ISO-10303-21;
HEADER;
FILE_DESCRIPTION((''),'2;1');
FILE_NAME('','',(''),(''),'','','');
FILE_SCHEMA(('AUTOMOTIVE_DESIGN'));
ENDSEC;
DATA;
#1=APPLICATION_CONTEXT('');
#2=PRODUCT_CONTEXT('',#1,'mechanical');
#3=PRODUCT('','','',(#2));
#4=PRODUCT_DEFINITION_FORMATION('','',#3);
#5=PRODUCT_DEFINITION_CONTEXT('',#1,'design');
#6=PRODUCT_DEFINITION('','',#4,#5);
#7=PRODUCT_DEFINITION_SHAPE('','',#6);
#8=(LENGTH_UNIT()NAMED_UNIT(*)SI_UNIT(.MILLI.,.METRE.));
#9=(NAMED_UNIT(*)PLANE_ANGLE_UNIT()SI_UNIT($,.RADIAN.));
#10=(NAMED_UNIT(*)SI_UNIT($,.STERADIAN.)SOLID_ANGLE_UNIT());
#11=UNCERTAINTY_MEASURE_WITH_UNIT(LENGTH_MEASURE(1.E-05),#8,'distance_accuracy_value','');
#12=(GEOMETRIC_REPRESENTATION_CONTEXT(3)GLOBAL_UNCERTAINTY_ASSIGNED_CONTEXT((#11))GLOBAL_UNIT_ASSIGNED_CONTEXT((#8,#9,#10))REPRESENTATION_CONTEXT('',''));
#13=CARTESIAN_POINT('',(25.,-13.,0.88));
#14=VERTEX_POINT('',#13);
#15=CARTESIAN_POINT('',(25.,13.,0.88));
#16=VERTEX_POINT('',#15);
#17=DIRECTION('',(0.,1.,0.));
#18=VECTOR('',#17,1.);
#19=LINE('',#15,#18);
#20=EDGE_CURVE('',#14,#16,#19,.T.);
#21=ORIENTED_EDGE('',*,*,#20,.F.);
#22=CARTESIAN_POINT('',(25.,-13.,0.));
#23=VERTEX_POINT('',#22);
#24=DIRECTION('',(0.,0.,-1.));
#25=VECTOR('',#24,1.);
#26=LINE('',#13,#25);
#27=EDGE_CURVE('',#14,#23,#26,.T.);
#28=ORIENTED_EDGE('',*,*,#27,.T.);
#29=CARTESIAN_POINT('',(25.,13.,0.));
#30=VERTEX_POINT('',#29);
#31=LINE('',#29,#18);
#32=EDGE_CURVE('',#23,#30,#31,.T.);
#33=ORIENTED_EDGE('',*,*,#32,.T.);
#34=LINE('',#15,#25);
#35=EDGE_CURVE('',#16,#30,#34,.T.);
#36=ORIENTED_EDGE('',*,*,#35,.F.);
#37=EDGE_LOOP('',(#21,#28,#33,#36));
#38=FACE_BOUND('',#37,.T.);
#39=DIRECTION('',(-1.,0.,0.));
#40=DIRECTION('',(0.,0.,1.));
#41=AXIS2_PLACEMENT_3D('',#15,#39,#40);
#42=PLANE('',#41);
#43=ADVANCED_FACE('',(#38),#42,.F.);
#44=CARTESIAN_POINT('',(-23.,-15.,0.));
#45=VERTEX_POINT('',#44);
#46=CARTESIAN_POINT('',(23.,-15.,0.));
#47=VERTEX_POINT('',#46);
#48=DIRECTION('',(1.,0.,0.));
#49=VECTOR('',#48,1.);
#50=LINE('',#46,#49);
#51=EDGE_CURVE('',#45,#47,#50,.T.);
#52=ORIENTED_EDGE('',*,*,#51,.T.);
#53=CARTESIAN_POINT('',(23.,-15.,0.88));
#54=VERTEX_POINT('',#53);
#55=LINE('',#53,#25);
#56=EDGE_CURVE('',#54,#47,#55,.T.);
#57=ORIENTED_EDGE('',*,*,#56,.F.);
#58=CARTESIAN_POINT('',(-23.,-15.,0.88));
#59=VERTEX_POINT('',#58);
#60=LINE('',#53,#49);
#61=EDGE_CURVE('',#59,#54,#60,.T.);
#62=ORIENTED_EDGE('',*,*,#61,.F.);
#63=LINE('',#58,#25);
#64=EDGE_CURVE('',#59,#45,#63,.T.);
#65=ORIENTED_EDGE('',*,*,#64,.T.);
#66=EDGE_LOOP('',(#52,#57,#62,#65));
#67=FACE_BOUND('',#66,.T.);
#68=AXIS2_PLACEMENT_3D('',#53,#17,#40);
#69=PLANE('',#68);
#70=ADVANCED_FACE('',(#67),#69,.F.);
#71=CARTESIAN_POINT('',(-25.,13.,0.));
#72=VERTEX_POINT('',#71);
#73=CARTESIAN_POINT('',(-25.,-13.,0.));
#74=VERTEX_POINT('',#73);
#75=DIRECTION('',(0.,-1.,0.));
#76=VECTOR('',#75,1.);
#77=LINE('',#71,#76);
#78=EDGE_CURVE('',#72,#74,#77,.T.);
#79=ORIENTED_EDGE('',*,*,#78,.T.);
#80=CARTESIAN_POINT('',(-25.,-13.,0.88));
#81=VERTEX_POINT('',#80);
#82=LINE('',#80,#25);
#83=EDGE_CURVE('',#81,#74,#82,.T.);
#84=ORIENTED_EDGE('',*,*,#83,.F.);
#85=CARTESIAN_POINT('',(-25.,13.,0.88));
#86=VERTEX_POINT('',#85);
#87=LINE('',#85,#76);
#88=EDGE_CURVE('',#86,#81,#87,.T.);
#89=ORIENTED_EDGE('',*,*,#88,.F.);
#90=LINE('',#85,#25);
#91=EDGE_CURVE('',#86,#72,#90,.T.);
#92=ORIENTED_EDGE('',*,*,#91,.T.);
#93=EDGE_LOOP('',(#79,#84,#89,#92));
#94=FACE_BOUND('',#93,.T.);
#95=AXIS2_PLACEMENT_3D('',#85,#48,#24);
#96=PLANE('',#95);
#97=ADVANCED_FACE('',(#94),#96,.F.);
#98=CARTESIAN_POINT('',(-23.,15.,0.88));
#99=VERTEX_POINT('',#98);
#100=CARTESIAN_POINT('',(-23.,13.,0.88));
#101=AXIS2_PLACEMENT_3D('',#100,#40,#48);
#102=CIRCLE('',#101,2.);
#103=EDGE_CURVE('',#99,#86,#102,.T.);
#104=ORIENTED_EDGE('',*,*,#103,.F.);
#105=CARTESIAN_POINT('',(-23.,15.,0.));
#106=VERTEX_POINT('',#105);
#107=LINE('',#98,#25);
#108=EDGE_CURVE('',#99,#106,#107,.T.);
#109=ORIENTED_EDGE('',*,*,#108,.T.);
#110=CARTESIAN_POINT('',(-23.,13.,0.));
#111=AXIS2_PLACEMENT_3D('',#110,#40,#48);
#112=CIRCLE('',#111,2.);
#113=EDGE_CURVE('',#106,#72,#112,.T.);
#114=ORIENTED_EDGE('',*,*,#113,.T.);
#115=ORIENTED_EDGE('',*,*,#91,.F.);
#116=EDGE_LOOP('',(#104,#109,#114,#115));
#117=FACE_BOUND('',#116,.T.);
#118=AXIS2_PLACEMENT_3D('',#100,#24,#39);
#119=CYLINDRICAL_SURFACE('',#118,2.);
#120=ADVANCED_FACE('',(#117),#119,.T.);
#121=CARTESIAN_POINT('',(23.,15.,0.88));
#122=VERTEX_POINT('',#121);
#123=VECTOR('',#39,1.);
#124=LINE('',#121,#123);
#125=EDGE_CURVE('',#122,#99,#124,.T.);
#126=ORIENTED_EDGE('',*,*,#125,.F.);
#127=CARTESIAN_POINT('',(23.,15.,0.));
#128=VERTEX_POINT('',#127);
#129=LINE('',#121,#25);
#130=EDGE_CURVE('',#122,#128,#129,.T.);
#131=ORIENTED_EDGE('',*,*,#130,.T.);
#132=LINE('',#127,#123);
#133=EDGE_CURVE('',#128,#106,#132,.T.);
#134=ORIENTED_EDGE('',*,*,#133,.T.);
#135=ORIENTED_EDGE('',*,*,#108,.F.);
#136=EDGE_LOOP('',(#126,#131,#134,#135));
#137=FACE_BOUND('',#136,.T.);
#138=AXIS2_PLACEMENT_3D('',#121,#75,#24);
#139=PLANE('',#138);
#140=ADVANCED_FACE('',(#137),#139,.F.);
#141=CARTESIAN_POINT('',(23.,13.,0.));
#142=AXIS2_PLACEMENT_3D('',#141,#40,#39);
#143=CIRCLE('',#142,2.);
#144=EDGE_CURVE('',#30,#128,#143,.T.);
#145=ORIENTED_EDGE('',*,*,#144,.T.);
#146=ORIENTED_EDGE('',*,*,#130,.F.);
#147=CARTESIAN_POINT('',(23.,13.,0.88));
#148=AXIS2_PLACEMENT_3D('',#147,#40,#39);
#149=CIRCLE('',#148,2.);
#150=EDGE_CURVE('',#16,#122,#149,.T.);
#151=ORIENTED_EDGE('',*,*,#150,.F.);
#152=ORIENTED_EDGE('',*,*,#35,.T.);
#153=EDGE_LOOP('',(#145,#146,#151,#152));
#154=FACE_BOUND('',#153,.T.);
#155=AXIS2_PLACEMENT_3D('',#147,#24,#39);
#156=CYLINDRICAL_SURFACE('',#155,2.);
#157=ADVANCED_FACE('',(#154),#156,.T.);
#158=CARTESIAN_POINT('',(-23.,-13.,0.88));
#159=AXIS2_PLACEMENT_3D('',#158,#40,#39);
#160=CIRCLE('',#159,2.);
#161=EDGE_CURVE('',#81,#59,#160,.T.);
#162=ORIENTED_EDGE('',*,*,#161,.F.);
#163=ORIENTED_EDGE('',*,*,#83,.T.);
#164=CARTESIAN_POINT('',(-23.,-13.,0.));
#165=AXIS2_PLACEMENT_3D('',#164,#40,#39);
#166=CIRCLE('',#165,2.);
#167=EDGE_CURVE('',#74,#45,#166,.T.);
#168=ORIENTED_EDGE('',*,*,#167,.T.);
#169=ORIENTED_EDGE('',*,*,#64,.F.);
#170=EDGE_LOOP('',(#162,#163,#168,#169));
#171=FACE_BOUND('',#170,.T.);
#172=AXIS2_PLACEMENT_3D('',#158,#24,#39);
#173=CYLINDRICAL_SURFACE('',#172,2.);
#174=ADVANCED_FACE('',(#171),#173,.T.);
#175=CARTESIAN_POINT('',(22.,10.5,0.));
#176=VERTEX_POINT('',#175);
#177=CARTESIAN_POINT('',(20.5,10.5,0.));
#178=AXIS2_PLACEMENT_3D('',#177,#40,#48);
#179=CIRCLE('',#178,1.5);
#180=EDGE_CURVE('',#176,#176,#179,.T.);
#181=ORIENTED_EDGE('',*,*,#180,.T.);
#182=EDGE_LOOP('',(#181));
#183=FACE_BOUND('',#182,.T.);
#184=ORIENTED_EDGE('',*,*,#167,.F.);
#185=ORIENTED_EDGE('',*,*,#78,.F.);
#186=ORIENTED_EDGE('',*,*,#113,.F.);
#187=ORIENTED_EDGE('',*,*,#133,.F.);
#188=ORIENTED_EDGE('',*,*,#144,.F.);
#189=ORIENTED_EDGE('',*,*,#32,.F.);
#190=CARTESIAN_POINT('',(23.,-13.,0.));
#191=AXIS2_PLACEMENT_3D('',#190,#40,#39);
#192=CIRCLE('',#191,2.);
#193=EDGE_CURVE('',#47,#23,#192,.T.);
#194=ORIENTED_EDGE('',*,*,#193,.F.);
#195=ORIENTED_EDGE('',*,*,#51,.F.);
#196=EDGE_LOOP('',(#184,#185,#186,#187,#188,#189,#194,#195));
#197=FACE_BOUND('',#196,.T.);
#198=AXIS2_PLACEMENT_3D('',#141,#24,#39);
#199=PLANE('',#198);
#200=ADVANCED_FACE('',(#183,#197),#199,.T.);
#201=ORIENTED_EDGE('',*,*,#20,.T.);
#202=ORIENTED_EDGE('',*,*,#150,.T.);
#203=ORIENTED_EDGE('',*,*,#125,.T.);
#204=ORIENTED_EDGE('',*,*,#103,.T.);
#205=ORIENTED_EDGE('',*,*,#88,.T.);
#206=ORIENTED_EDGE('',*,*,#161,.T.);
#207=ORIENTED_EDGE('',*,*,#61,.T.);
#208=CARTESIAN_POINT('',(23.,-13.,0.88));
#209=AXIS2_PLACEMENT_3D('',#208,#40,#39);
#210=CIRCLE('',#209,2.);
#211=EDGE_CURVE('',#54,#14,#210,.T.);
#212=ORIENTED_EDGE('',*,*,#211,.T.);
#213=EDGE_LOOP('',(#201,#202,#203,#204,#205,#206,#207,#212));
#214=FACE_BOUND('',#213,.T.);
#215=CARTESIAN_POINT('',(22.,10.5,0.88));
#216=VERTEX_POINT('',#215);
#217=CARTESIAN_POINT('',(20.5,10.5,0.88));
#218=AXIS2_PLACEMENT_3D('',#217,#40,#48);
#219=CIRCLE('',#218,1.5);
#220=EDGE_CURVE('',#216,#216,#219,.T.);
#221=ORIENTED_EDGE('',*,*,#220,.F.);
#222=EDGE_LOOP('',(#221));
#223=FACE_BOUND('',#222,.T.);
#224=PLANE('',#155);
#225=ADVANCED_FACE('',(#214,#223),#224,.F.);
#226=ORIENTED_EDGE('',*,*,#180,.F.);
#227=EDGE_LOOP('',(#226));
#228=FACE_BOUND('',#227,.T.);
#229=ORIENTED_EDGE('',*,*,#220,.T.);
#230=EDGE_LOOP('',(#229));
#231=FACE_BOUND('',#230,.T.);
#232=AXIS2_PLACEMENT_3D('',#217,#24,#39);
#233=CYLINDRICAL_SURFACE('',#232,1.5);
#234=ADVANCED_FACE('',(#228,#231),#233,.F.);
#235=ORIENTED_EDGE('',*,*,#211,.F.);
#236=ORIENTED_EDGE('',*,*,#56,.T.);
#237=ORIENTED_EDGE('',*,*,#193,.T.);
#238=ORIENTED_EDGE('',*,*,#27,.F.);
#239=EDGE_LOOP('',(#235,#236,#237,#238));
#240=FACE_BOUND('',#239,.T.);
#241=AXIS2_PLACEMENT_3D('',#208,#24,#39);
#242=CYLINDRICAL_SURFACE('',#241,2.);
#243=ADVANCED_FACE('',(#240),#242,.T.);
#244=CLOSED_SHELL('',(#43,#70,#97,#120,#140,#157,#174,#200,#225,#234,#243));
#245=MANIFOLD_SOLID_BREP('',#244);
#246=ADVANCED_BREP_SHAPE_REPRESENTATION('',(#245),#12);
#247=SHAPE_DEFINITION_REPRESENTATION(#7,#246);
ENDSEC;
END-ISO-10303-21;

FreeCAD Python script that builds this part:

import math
import FreeCAD as App
import Part
import Sketcher

V = App.Vector

doc = App.newDocument("Part")
body = doc.addObject("PartDesign::Body", "Body")

# Sketch on XY plane
sketch1 = doc.addObject("Sketcher::SketchObject", "Sketch")
body.addObject(sketch1)
sketch1.AttachmentSupport = (doc.XY_Plane, [""])
sketch1.MapMode = "FlatFace"
sketch1.addGeometry(Part.LineSegment(V(23, 15, 0), V(-23, 15, 0)), False)
sketch1.addGeometry(Part.ArcOfCircle(Part.Circle(V(-23, 13, 0), V(0, 0, 1), 2), math.radians(90), math.radians(180)), False)
sketch1.addGeometry(Part.LineSegment(V(-25, 13, 0), V(-25, -13, 0)), False)
sketch1.addGeometry(Part.ArcOfCircle(Part.Circle(V(-23, -13, 0), V(0, 0, 1), 2), math.radians(-180), math.radians(-90)), False)
sketch1.addGeometry(Part.LineSegment(V(-23, -15, 0), V(23, -15, 0)), False)
sketch1.addGeometry(Part.ArcOfCircle(Part.Circle(V(23, -13, 0), V(0, 0, 1), 2), math.radians(-90), math.radians(0)), False)
sketch1.addGeometry(Part.LineSegment(V(25, -13, 0), V(25, 13, 0)), False)
sketch1.addGeometry(Part.ArcOfCircle(Part.Circle(V(23, 13, 0), V(0, 0, 1), 2), math.radians(0), math.radians(90)), False)
sketch1.addGeometry(Part.Circle(V(20.5, 10.5, 0), V(0, 0, 1), 1.5), False)
sketch1.addConstraint(Sketcher.Constraint("Tangent", 0, 2, 1, 1))
sketch1.addConstraint(Sketcher.Constraint("Tangent", 1, 2, 2, 1))
sketch1.addConstraint(Sketcher.Constraint("Tangent", 2, 2, 3, 1))
sketch1.addConstraint(Sketcher.Constraint("Tangent", 3, 2, 4, 1))
sketch1.addConstraint(Sketcher.Constraint("Tangent", 4, 2, 5, 1))
sketch1.addConstraint(Sketcher.Constraint("Tangent", 5, 2, 6, 1))
sketch1.addConstraint(Sketcher.Constraint("Tangent", 6, 2, 7, 1))
sketch1.addConstraint(Sketcher.Constraint("Tangent", 7, 2, 0, 1))
sketch1.addConstraint(Sketcher.Constraint("Horizontal", 0))
sketch1.addConstraint(Sketcher.Constraint("Vertical", 2))
sketch1.addConstraint(Sketcher.Constraint("Horizontal", 4))
sketch1.addConstraint(Sketcher.Constraint("Vertical", 6))
sketch1.addConstraint(Sketcher.Constraint("Equal", 1, 3))
sketch1.addConstraint(Sketcher.Constraint("Equal", 3, 5))
sketch1.addConstraint(Sketcher.Constraint("Equal", 5, 7))
sketch1.addConstraint(Sketcher.Constraint("Symmetric", 1, 3, 5, 3, -1, 1))
sketch1.addConstraint(Sketcher.Constraint("Diameter", 8, 3.0))
sketch1.addConstraint(Sketcher.Constraint("Radius", 1, 2.0))
sketch1.addConstraint(Sketcher.Constraint("DistanceX", 0, 2, 0, 1, 46.0))
sketch1.addConstraint(Sketcher.Constraint("DistanceY", 2, 2, 2, 1, 26.0))
sketch1.addConstraint(Sketcher.Constraint("DistanceX", -1, 1, 8, 3, 20.5))
sketch1.addConstraint(Sketcher.Constraint("DistanceY", -1, 1, 8, 3, 10.5))
pad1 = doc.addObject("PartDesign::Pad", "Pad")
body.addObject(pad1)
pad1.Profile = sketch1
pad1.Length = 0.88

doc.recompute()
